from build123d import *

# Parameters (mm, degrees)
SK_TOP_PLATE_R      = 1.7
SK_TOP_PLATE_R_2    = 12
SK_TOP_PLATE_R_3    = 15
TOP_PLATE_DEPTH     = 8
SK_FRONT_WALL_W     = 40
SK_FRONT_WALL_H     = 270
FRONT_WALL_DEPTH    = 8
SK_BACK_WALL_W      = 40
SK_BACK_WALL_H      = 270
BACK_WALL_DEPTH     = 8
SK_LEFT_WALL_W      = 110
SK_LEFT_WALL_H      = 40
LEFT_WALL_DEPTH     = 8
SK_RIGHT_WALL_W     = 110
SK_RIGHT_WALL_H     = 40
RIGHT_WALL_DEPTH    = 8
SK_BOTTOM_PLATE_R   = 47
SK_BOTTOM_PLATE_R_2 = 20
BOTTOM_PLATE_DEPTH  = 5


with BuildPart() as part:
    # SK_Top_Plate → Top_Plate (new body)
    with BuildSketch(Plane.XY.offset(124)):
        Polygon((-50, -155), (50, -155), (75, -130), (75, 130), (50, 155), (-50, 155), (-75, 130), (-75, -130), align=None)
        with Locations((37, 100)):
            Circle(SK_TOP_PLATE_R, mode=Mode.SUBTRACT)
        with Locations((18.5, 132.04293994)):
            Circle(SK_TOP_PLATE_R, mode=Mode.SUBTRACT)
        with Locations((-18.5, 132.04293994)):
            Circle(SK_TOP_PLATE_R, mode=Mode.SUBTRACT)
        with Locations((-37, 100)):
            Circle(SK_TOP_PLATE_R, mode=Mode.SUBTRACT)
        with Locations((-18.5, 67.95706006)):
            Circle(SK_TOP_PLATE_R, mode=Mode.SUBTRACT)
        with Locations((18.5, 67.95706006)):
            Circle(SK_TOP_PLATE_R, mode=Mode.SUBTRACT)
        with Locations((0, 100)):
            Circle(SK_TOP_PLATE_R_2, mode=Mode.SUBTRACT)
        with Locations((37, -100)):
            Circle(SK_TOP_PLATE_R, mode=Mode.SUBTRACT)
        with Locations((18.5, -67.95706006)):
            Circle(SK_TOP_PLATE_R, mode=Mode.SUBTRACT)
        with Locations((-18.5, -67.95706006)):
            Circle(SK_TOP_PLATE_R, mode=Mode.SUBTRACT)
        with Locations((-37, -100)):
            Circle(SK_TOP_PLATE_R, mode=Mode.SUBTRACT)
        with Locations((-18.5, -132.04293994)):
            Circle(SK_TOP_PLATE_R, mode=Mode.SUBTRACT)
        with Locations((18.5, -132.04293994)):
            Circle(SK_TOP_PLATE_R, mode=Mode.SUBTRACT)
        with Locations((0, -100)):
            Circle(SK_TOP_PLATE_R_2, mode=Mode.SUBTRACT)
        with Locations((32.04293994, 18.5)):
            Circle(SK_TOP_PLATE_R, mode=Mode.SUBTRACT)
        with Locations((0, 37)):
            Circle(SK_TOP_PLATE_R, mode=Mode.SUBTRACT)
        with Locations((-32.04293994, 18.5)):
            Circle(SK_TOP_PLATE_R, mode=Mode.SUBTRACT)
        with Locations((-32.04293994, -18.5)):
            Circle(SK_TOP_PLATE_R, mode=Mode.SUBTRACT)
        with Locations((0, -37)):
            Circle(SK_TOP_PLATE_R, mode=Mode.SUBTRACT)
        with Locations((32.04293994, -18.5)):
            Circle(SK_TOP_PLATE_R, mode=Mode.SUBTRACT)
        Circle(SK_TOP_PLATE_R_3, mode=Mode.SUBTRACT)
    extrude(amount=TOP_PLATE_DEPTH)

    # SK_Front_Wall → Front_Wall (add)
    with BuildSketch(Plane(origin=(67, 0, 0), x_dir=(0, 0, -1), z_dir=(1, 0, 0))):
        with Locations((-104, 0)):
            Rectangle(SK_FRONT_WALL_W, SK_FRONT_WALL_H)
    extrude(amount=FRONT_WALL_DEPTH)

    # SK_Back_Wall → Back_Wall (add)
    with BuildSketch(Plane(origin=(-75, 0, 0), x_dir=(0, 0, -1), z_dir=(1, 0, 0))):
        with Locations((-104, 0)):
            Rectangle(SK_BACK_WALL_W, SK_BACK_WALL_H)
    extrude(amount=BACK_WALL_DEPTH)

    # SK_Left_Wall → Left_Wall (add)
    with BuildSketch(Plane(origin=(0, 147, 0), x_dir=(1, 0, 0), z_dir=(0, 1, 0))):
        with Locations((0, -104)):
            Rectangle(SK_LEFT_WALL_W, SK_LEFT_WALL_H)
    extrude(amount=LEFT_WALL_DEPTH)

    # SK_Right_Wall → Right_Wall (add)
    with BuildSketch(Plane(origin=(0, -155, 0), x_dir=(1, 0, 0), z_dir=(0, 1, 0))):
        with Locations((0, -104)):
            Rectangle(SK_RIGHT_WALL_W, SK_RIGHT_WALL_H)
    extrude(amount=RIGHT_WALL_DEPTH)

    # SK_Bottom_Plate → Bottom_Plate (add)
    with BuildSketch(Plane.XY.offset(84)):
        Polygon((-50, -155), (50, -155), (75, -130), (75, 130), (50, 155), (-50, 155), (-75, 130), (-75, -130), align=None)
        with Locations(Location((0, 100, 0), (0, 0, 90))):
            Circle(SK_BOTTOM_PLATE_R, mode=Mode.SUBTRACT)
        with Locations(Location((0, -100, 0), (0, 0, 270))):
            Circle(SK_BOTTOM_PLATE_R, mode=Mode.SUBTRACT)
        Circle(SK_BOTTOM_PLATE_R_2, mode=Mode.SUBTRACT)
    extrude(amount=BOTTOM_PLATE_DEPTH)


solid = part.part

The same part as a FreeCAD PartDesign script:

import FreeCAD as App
import Part
import Sketcher
from FreeCAD import Vector


def add_polygon(sketch, points):
    """Adds a closed chain of lines whose ends are joined by coincident constraints."""
    first, n = sketch.GeometryCount, len(points)
    for a, b in zip(points, points[1:] + points[:1]):
        sketch.addGeometry(Part.LineSegment(App.Vector(*a, 0), App.Vector(*b, 0)), False)
    for i in range(n):
        sketch.addConstraint(Sketcher.Constraint("Coincident", first + i, 2, first + (i + 1) % n, 1))

doc = App.newDocument("Part")
params = doc.addObject("Spreadsheet::Sheet", "Params")
for row, (alias, value) in enumerate([
    ("sketch1_diameter", "24 mm"),
    ("sketch1_diameter2", "30 mm"),
    ("sketch1_diameter3", "3.4 mm"),
    ("sketch1_width", "100 mm"),
    ("sketch1_height", "260 mm"),
    ("pad1_length", "8 mm"),
    ("sketch2_width", "270 mm"),
    ("sketch2_height", "40 mm"),
    ("pad2_length", "8 mm"),
    ("sketch3_width", "270 mm"),
    ("sketch3_height", "40 mm"),
    ("pad3_length", "8 mm"),
    ("sketch4_width", "110 mm"),
    ("sketch4_height", "40 mm"),
    ("pad4_length", "8 mm"),
    ("sketch5_width", "110 mm"),
    ("sketch5_height", "40 mm"),
    ("pad5_length", "8 mm"),
    ("sketch6_diameter", "94 mm"),
    ("sketch6_diameter2", "40 mm"),
    ("sketch6_width", "100 mm"),
    ("sketch6_height", "260 mm"),
    ("pad6_length", "5 mm"),
], start=1):
    params.set(f"A{row}", alias)
    params.set(f"B{row}", "=" + value)
    params.setAlias(f"B{row}", alias)

body = doc.addObject("PartDesign::Body", "Body")

sketch1 = body.newObject("Sketcher::SketchObject", "Sketch")
sketch1.AttachmentSupport = (doc.getObject("XY_Plane"), [""])
sketch1.MapMode = "FlatFace"
sketch1.AttachmentOffset = App.Placement(Vector(0, 0, 124), App.Rotation())
add_polygon(sketch1, [(-50, -155), (50, -155), (75, -130), (75, 130), (50, 155), (-50, 155), (-75, 130), (-75, -130)])
sketch1.addGeometry(Part.Circle(Vector(-37, -100, 0), Vector(0, 0, 1), 1.7), False)
sketch1.addGeometry(Part.Circle(Vector(-18.5, -132.04294, 0), Vector(0, 0, 1), 1.7), False)
sketch1.addGeometry(Part.Circle(Vector(-18.5, -67.95706, 0), Vector(0, 0, 1), 1.7), False)
sketch1.addGeometry(Part.Circle(Vector(-32.04294, -18.5, 0), Vector(0, 0, 1), 1.7), False)
sketch1.addGeometry(Part.Circle(Vector(18.5, -132.04294, 0), Vector(0, 0, 1), 1.7), False)
sketch1.addGeometry(Part.Circle(Vector(0, -100, 0), Vector(0, 0, 1), 12), False)
sketch1.addGeometry(Part.Circle(Vector(18.5, -67.95706, 0), Vector(0, 0, 1), 1.7), False)
sketch1.addGeometry(Part.Circle(Vector(37, -100, 0), Vector(0, 0, 1), 1.7), False)
sketch1.addGeometry(Part.Circle(Vector(0, -37, 0), Vector(0, 0, 1), 1.7), False)
sketch1.addGeometry(Part.Circle(Vector(32.04294, -18.5, 0), Vector(0, 0, 1), 1.7), False)
sketch1.addGeometry(Part.Circle(Vector(-32.04294, 18.5, 0), Vector(0, 0, 1), 1.7), False)
sketch1.addGeometry(Part.Circle(Vector(-37, 100, 0), Vector(0, 0, 1), 1.7), False)
sketch1.addGeometry(Part.Circle(Vector(-18.5, 67.95706, 0), Vector(0, 0, 1), 1.7), False)
sketch1.addGeometry(Part.Circle(Vector(-18.5, 132.04294, 0), Vector(0, 0, 1), 1.7), False)
sketch1.addGeometry(Part.Circle(Vector(0, 0, 0), Vector(0, 0, 1), 15), False)
sketch1.addGeometry(Part.Circle(Vector(0, 37, 0), Vector(0, 0, 1), 1.7), False)
sketch1.addGeometry(Part.Circle(Vector(32.04294, 18.5, 0), Vector(0, 0, 1), 1.7), False)
sketch1.addGeometry(Part.Circle(Vector(0, 100, 0), Vector(0, 0, 1), 12), False)
sketch1.addGeometry(Part.Circle(Vector(18.5, 67.95706, 0), Vector(0, 0, 1), 1.7), False)
sketch1.addGeometry(Part.Circle(Vector(18.5, 132.04294, 0), Vector(0, 0, 1), 1.7), False)
sketch1.addGeometry(Part.Circle(Vector(37, 100, 0), Vector(0, 0, 1), 1.7), False)
sketch1.addConstraint(Sketcher.Constraint("Horizontal", 0))
sketch1.addConstraint(Sketcher.Constraint("Vertical", 2))
sketch1.addConstraint(Sketcher.Constraint("Horizontal", 4))
sketch1.addConstraint(Sketcher.Constraint("Vertical", 6))
sketch1.addConstraint(Sketcher.Constraint("Coincident", 22, 3, -1, 1))
sketch1.addConstraint(Sketcher.Constraint("Equal", 8, 9))
sketch1.addConstraint(Sketcher.Constraint("Equal", 9, 10))
sketch1.addConstraint(Sketcher.Constraint("Equal", 10, 11))
sketch1.addConstraint(Sketcher.Constraint("Equal", 11, 12))
sketch1.addConstraint(Sketcher.Constraint("Equal", 12, 14))
sketch1.addConstraint(Sketcher.Constraint("Equal", 14, 15))
sketch1.addConstraint(Sketcher.Constraint("Equal", 15, 16))
sketch1.addConstraint(Sketcher.Constraint("Equal", 16, 17))
sketch1.addConstraint(Sketcher.Constraint("Equal", 17, 18))
sketch1.addConstraint(Sketcher.Constraint("Equal", 18, 19))
sketch1.addConstraint(Sketcher.Constraint("Equal", 19, 20))
sketch1.addConstraint(Sketcher.Constraint("Equal", 20, 21))
sketch1.addConstraint(Sketcher.Constraint("Equal", 21, 23))
sketch1.addConstraint(Sketcher.Constraint("Equal", 23, 24))
sketch1.addConstraint(Sketcher.Constraint("Equal", 13, 25))
sketch1.addConstraint(Sketcher.Constraint("Equal", 24, 26))
sketch1.addConstraint(Sketcher.Constraint("Equal", 26, 27))
sketch1.addConstraint(Sketcher.Constraint("Equal", 27, 28))
sketch1.addConstraint(Sketcher.Constraint("Symmetric", 17, 3, 18, 3, -1, 1))
sketch1.addConstraint(Sketcher.Constraint("Symmetric", 15, 3, 19, 3, -1, 1))
sketch1.addConstraint(Sketcher.Constraint("Symmetric", 14, 3, 20, 3, -1, 1))
sketch1.addConstraint(Sketcher.Constraint("Symmetric", 12, 3, 21, 3, -1, 1))
sketch1.addConstraint(Sketcher.Constraint("Symmetric", 16, 3, 23, 3, -1, 1))
sketch1.addConstraint(Sketcher.Constraint("Symmetric", 11, 3, 24, 3, -1, 1))
sketch1.addConstraint(Sketcher.Constraint("Symmetric", 13, 3, 25, 3, -1, 1))
sketch1.addConstraint(Sketcher.Constraint("Symmetric", 10, 3, 26, 3, -1, 1))
sketch1.addConstraint(Sketcher.Constraint("Symmetric", 9, 3, 27, 3, -1, 1))
sketch1.addConstraint(Sketcher.Constraint("Symmetric", 8, 3, 28, 3, -1, 1))
sketch1.addConstraint(Sketcher.Constraint("Symmetric", 0, 2, 4, 2, -1, 1))
sketch1.addConstraint(Sketcher.Constraint("Symmetric", 1, 2, 5, 2, -1, 1))
sketch1.addConstraint(Sketcher.Constraint("Symmetric", 9, 3, 12, 3, -2))
sketch1.addConstraint(Sketcher.Constraint("Symmetric", 10, 3, 14, 3, -2))
sketch1.addConstraint(Sketcher.Constraint("Symmetric", 8, 3, 15, 3, -2))
sketch1.addConstraint(Sketcher.Constraint("Symmetric", 11, 3, 17, 3, -2))
sketch1.addConstraint(Sketcher.Constraint("PointOnObject", 13, 3, -2))
sketch1.addConstraint(Sketcher.Constraint("PointOnObject", 16, 3, -2))
sketch1.addConstraint(Sketcher.Constraint("Perpendicular", 1, 3))
sketch1.addConstraint(Sketcher.Constraint("Perpendicular", 5, 7))
sketch1.addConstraint(Sketcher.Constraint("Horizontal", 8, 3, 13, 3))
sketch1.addConstraint(Sketcher.Constraint("Horizontal", 2, 2, 5, 2))
sketch1.addConstraint(Sketcher.Constraint("Horizontal", 1, 2, 6, 2))
sketch1.addConstraint(Sketcher.Constraint("Vertical", 9, 3, 10, 3))
sketch1.addConstraint(Sketcher.Constraint("Vertical", 0, 2, 3, 2))
sketch1.addConstraint(Sketcher.Constraint("Diameter", 13, 24.0))
sketch1.addConstraint(Sketcher.Constraint("Diameter", 22, 30.0))
sketch1.addConstraint(Sketcher.Constraint("Diameter", 8, 3.4))
sketch1.addConstraint(Sketcher.Constraint("DistanceX", 0, 1, 0, 2, 100.0))
sketch1.addConstraint(Sketcher.Constraint("DistanceY", 2, 1, 2, 2, 260.0))
sketch1.addConstraint(Sketcher.Constraint("DistanceX", 8, 3, -1, 1, 37.0))
sketch1.addConstraint(Sketcher.Constraint("DistanceY", 8, 3, -1, 1, 100.0))
sketch1.addConstraint(Sketcher.Constraint("DistanceY", 16, 3, -1, 1, 37.0))
sketch1.addConstraint(Sketcher.Constraint("DistanceY", 0, 2, -1, 1, 155.0))
sketch1.addConstraint(Sketcher.Constraint("DistanceX", 9, 3, 12, 3, 37.0))
sketch1.addConstraint(Sketcher.Constraint("DistanceY", 11, 3, 18, 3, 37.0))
sketch1.addConstraint(Sketcher.Constraint("DistanceY", 9, 3, -1, 1, 132.04294))
sketch1.addConstraint(Sketcher.Constraint("DistanceY", 10, 3, -1, 1, 67.95706))
sketch1.addConstraint(Sketcher.Constraint("DistanceX", 11, 3, -1, 1, 32.04294))
sketch1.setExpression("Constraints[56]", "Params.sketch1_diameter")
sketch1.setExpression("Constraints[57]", "Params.sketch1_diameter2")
sketch1.setExpression("Constraints[58]", "Params.sketch1_diameter3")
sketch1.setExpression("Constraints[59]", "Params.sketch1_width")
sketch1.setExpression("Constraints[60]", "Params.sketch1_height")
pad1 = body.newObject("PartDesign::Pad", "Pad")
pad1.Profile = sketch1
pad1.setExpression("Length", "Params.pad1_length")

sketch2 = body.newObject("Sketcher::SketchObject", "Sketch001")
sketch2.AttachmentSupport = (doc.getObject("YZ_Plane"), [""])
sketch2.MapMode = "FlatFace"
sketch2.AttachmentOffset = App.Placement(Vector(0, 0, 67), App.Rotation())
add_polygon(sketch2, [(135, 124), (-135, 124), (-135, 84), (135, 84)])
sketch2.addConstraint(Sketcher.Constraint("Horizontal", 0))
sketch2.addConstraint(Sketcher.Constraint("Vertical", 1))
sketch2.addConstraint(Sketcher.Constraint("Horizontal", 2))
sketch2.addConstraint(Sketcher.Constraint("Vertical", 3))
sketch2.addConstraint(Sketcher.Constraint("DistanceX", 0, 2, 0, 1, 270.0))
sketch2.addConstraint(Sketcher.Constraint("DistanceY", 1, 2, 1, 1, 40.0))
sketch2.addConstraint(Sketcher.Constraint("DistanceX", 0, 2, -1, 1, 135.0))
sketch2.addConstraint(Sketcher.Constraint("DistanceY", -1, 1, 0, 2, 124.0))
sketch2.setExpression("Constraints[8]", "Params.sketch2_width")
sketch2.setExpression("Constraints[9]", "Params.sketch2_height")
pad2 = body.newObject("PartDesign::Pad", "Pad001")
pad2.Profile = sketch2
pad2.setExpression("Length", "Params.pad2_length")

sketch3 = body.newObject("Sketcher::SketchObject", "Sketch002")
sketch3.AttachmentSupport = (doc.getObject("YZ_Plane"), [""])
sketch3.MapMode = "FlatFace"
sketch3.AttachmentOffset = App.Placement(Vector(0, 0, -75), App.Rotation())
add_polygon(sketch3, [(135, 124), (-135, 124), (-135, 84), (135, 84)])
sketch3.addConstraint(Sketcher.Constraint("Horizontal", 0))
sketch3.addConstraint(Sketcher.Constraint("Vertical", 1))
sketch3.addConstraint(Sketcher.Constraint("Horizontal", 2))
sketch3.addConstraint(Sketcher.Constraint("Vertical", 3))
sketch3.addConstraint(Sketcher.Constraint("DistanceX", 0, 2, 0, 1, 270.0))
sketch3.addConstraint(Sketcher.Constraint("DistanceY", 1, 2, 1, 1, 40.0))
sketch3.addConstraint(Sketcher.Constraint("DistanceX", 0, 2, -1, 1, 135.0))
sketch3.addConstraint(Sketcher.Constraint("DistanceY", -1, 1, 0, 2, 124.0))
sketch3.setExpression("Constraints[8]", "Params.sketch3_width")
sketch3.setExpression("Constraints[9]", "Params.sketch3_height")
pad3 = body.newObject("PartDesign::Pad", "Pad002")
pad3.Profile = sketch3
pad3.setExpression("Length", "Params.pad3_length")

sketch4 = body.newObject("Sketcher::SketchObject", "Sketch003")
sketch4.AttachmentSupport = (doc.getObject("XZ_Plane"), [""])
sketch4.MapMode = "FlatFace"
sketch4.AttachmentOffset = App.Placement(Vector(0, 0, -147), App.Rotation())
add_polygon(sketch4, [(-55, 84), (-55, 124), (55, 124), (55, 84)])
sketch4.addConstraint(Sketcher.Constraint("Vertical", 0))
sketch4.addConstraint(Sketcher.Constraint("Horizontal", 1))
sketch4.addConstraint(Sketcher.Constraint("Vertical", 2))
sketch4.addConstraint(Sketcher.Constraint("Horizontal", 3))
sketch4.addConstraint(Sketcher.Constraint("DistanceX", 1, 1, 1, 2, 110.0))
sketch4.addConstraint(Sketcher.Constraint("DistanceY", 0, 1, 0, 2, 40.0))
sketch4.addConstraint(Sketcher.Constraint("DistanceX", 0, 2, -1, 1, 55.0))
sketch4.addConstraint(Sketcher.Constraint("DistanceY", -1, 1, 0, 2, 124.0))
sketch4.setExpression("Constraints[8]", "Params.sketch4_width")
sketch4.setExpression("Constraints[9]", "Params.sketch4_height")
pad4 = body.newObject("PartDesign::Pad", "Pad003")
pad4.Profile = sketch4
pad4.setExpression("Length", "Params.pad4_length")
pad4.Reversed = True

sketch5 = body.newObject("Sketcher::SketchObject", "Sketch004")
sketch5.AttachmentSupport = (doc.getObject("XZ_Plane"), [""])
sketch5.MapMode = "FlatFace"
sketch5.AttachmentOffset = App.Placement(Vector(0, 0, 155), App.Rotation())
add_polygon(sketch5, [(-55, 84), (-55, 124), (55, 124), (55, 84)])
sketch5.addConstraint(Sketcher.Constraint("Vertical", 0))
sketch5.addConstraint(Sketcher.Constraint("Horizontal", 1))
sketch5.addConstraint(Sketcher.Constraint("Vertical", 2))
sketch5.addConstraint(Sketcher.Constraint("Horizontal", 3))
sketch5.addConstraint(Sketcher.Constraint("DistanceX", 1, 1, 1, 2, 110.0))
sketch5.addConstraint(Sketcher.Constraint("DistanceY", 0, 1, 0, 2, 40.0))
sketch5.addConstraint(Sketcher.Constraint("DistanceX", 0, 2, -1, 1, 55.0))
sketch5.addConstraint(Sketcher.Constraint("DistanceY", -1, 1, 0, 2, 124.0))
sketch5.setExpression("Constraints[8]", "Params.sketch5_width")
sketch5.setExpression("Constraints[9]", "Params.sketch5_height")
pad5 = body.newObject("PartDesign::Pad", "Pad004")
pad5.Profile = sketch5
pad5.setExpression("Length", "Params.pad5_length")
pad5.Reversed = True

sketch6 = body.newObject("Sketcher::SketchObject", "Sketch005")
sketch6.AttachmentSupport = (doc.getObject("XY_Plane"), [""])
sketch6.MapMode = "FlatFace"
sketch6.AttachmentOffset = App.Placement(Vector(0, 0, 84), App.Rotation())
add_polygon(sketch6, [(-50, -155), (50, -155), (75, -130), (75, 130), (50, 155), (-50, 155), (-75, 130), (-75, -130)])
sketch6.addGeometry(Part.Circle(Vector(0, -100, 0), Vector(0, 0, 1), 47), False)
sketch6.addGeometry(Part.Circle(Vector(0, 0, 0), Vector(0, 0, 1), 20), False)
sketch6.addGeometry(Part.Circle(Vector(0, 100, 0), Vector(0, 0, 1), 47), False)
sketch6.addConstraint(Sketcher.Constraint("Horizontal", 0))
sketch6.addConstraint(Sketcher.Constraint("Vertical", 2))
sketch6.addConstraint(Sketcher.Constraint("Horizontal", 4))
sketch6.addConstraint(Sketcher.Constraint("Vertical", 6))
sketch6.addConstraint(Sketcher.Constraint("Coincident", 9, 3, -1, 1))
sketch6.addConstraint(Sketcher.Constraint("Equal", 8, 10))
sketch6.addConstraint(Sketcher.Constraint("Symmetric", 8, 3, 10, 3, -1, 1))
sketch6.addConstraint(Sketcher.Constraint("Symmetric", 0, 2, 4, 2, -1, 1))
sketch6.addConstraint(Sketcher.Constraint("Symmetric", 1, 2, 5, 2, -1, 1))
sketch6.addConstraint(Sketcher.Constraint("PointOnObject", 8, 3, -2))
sketch6.addConstraint(Sketcher.Constraint("Perpendicular", 1, 3))
sketch6.addConstraint(Sketcher.Constraint("Perpendicular", 5, 7))
sketch6.addConstraint(Sketcher.Constraint("Horizontal", 2, 2, 5, 2))
sketch6.addConstraint(Sketcher.Constraint("Horizontal", 1, 2, 6, 2))
sketch6.addConstraint(Sketcher.Constraint("Vertical", 0, 2, 3, 2))
sketch6.addConstraint(Sketcher.Constraint("Diameter", 8, 94.0))
sketch6.addConstraint(Sketcher.Constraint("Diameter", 9, 40.0))
sketch6.addConstraint(Sketcher.Constraint("DistanceX", 0, 1, 0, 2, 100.0))
sketch6.addConstraint(Sketcher.Constraint("DistanceY", 2, 1, 2, 2, 260.0))
sketch6.addConstraint(Sketcher.Constraint("DistanceY", 8, 3, -1, 1, 100.0))
sketch6.addConstraint(Sketcher.Constraint("DistanceY", 0, 2, -1, 1, 155.0))
sketch6.setExpression("Constraints[23]", "Params.sketch6_diameter")
sketch6.setExpression("Constraints[24]", "Params.sketch6_diameter2")
sketch6.setExpression("Constraints[25]", "Params.sketch6_width")
sketch6.setExpression("Constraints[26]", "Params.sketch6_height")
pad6 = body.newObject("PartDesign::Pad", "Pad005")
pad6.Profile = sketch6
pad6.setExpression("Length", "Params.pad6_length")

doc.recompute()
